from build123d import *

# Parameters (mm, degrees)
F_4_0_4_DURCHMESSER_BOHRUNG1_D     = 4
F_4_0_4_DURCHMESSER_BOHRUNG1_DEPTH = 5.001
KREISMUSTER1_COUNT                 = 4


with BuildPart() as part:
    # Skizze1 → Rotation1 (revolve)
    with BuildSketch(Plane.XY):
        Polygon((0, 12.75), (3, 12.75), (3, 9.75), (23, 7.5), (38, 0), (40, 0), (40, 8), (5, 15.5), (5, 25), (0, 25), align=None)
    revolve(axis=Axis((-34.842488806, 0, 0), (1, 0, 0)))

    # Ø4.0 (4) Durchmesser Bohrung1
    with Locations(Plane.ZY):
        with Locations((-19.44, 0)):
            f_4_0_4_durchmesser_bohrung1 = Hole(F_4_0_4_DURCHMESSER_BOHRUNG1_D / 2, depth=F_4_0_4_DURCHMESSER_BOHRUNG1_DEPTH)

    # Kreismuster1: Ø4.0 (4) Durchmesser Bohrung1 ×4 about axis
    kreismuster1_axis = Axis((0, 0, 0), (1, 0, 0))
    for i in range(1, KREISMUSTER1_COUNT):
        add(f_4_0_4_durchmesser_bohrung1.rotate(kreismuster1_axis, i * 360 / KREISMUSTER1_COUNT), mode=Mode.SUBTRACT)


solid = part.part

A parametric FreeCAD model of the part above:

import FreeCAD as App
import Part
import Sketcher

V = App.Vector
Q = App.Units.Quantity

doc = App.newDocument("Part")
body = doc.addObject("PartDesign::Body", "Body")

sketch1 = body.newObject("Sketcher::SketchObject", "Sketch")
sketch1.AttachmentSupport = (doc.getObject("XY_Plane"), [""])
sketch1.MapMode = "FlatFace"
sketch1.addGeometry(Part.LineSegment(V(0, 12.8, 0), V(3, 12.8, 0)), False)
sketch1.addGeometry(Part.LineSegment(V(3, 12.8, 0), V(3, 9.8, 0)), False)
sketch1.addGeometry(Part.LineSegment(V(3, 9.8, 0), V(23, 7.5, 0)), False)
sketch1.addGeometry(Part.LineSegment(V(23, 7.5, 0), V(38, 0, 0)), False)
sketch1.addGeometry(Part.LineSegment(V(38, 0, 0), V(40, 0, 0)), False)
sketch1.addGeometry(Part.LineSegment(V(40, 0, 0), V(40, 8, 0)), False)
sketch1.addGeometry(Part.LineSegment(V(40, 8, 0), V(5, 15.5, 0)), False)
sketch1.addGeometry(Part.LineSegment(V(5, 15.5, 0), V(5, 25, 0)), False)
sketch1.addGeometry(Part.LineSegment(V(5, 25, 0), V(0, 25, 0)), False)
sketch1.addGeometry(Part.LineSegment(V(0, 25, 0), V(0, 12.8, 0)), False)
sketch1.addConstraint(Sketcher.Constraint("Coincident", 0, 2, 1, 1))
sketch1.addConstraint(Sketcher.Constraint("Coincident", 1, 2, 2, 1))
sketch1.addConstraint(Sketcher.Constraint("Coincident", 2, 2, 3, 1))
sketch1.addConstraint(Sketcher.Constraint("Coincident", 3, 2, 4, 1))
sketch1.addConstraint(Sketcher.Constraint("Coincident", 4, 2, 5, 1))
sketch1.addConstraint(Sketcher.Constraint("Coincident", 5, 2, 6, 1))
sketch1.addConstraint(Sketcher.Constraint("Coincident", 6, 2, 7, 1))
sketch1.addConstraint(Sketcher.Constraint("Coincident", 7, 2, 8, 1))
sketch1.addConstraint(Sketcher.Constraint("Coincident", 8, 2, 9, 1))
sketch1.addConstraint(Sketcher.Constraint("Coincident", 9, 2, 0, 1))
sketch1.addConstraint(Sketcher.Constraint("Horizontal", 0))
sketch1.addConstraint(Sketcher.Constraint("Vertical", 1))
sketch1.addConstraint(Sketcher.Constraint("Horizontal", 4))
sketch1.addConstraint(Sketcher.Constraint("Vertical", 5))
sketch1.addConstraint(Sketcher.Constraint("Vertical", 7))
sketch1.addConstraint(Sketcher.Constraint("Horizontal", 8))
sketch1.addConstraint(Sketcher.Constraint("Vertical", 9))
sketch1.addConstraint(Sketcher.Constraint("PointOnObject", 3, 2, -1))
sketch1.addConstraint(Sketcher.Constraint("PointOnObject", 8, 2, -2))
sketch1.addConstraint(Sketcher.Constraint("Equal", 0, 1))
sketch1.addConstraint(Sketcher.Constraint("DistanceX", 0, 1, 0, 2, Q("3 mm")))
sketch1.addConstraint(Sketcher.Constraint("DistanceX", 4, 1, 4, 2, Q("2 mm")))
sketch1.addConstraint(Sketcher.Constraint("DistanceX", 8, 2, 8, 1, Q("5 mm")))
sketch1.addConstraint(Sketcher.Constraint("DistanceY", 5, 1, 5, 2, Q("8 mm")))
sketch1.addConstraint(Sketcher.Constraint("DistanceY", 7, 1, 7, 2, Q("9.5 mm")))
sketch1.addConstraint(Sketcher.Constraint("DistanceX", -1, 1, 2, 2, Q("23 mm")))
sketch1.addConstraint(Sketcher.Constraint("DistanceX", -1, 1, 3, 2, Q("38 mm")))
sketch1.addConstraint(Sketcher.Constraint("DistanceY", -1, 1, 7, 2, Q("25 mm")))
sketch1.addConstraint(Sketcher.Constraint("DistanceY", 2, 2, 6, 2, Q("8 mm")))
sketch1.addConstraint(Sketcher.Constraint("DistanceY", 9, 2, 9, 1, Q("12.25 mm")))
revolution = body.newObject("PartDesign::Revolution", "Revolution")
revolution.Profile = sketch1
revolution.ReferenceAxis = (sketch1, ["H_Axis"])
revolution.Angle = 360

sketch2 = body.newObject("Sketcher::SketchObject", "Sketch001")
sketch2.AttachmentSupport = (doc.getObject("YZ_Plane"), [""])
sketch2.MapMode = "FlatFace"
sketch2.addGeometry(Part.Circle(V(0, -19.4, 0), V(0, 0, 1), 2), False)
sketch2.addConstraint(Sketcher.Constraint("PointOnObject", 0, 3, -2))
sketch2.addConstraint(Sketcher.Constraint("Diameter", 0, Q("4 mm")))
sketch2.addConstraint(Sketcher.Constraint("DistanceY", 0, 3, -1, 1, Q("19.44 mm")))
doc.recompute()
hole = body.newObject("PartDesign::Hole", "Hole")
hole.Profile = sketch2
hole.ThreadType = "None"
hole.Diameter = 4
hole.DepthType = "Dimension"
hole.Depth = 5.001
hole.DrillPoint = "Flat"
hole.Reversed = True
doc.recompute()

polarpattern = body.newObject("PartDesign::PolarPattern", "PolarPattern")
polarpattern.Originals = [hole]
polarpattern.Axis = (doc.getObject("X_Axis"), [""])
polarpattern.Angle = 360
polarpattern.Occurrences = 4
body.Tip = polarpattern

doc.recompute()
